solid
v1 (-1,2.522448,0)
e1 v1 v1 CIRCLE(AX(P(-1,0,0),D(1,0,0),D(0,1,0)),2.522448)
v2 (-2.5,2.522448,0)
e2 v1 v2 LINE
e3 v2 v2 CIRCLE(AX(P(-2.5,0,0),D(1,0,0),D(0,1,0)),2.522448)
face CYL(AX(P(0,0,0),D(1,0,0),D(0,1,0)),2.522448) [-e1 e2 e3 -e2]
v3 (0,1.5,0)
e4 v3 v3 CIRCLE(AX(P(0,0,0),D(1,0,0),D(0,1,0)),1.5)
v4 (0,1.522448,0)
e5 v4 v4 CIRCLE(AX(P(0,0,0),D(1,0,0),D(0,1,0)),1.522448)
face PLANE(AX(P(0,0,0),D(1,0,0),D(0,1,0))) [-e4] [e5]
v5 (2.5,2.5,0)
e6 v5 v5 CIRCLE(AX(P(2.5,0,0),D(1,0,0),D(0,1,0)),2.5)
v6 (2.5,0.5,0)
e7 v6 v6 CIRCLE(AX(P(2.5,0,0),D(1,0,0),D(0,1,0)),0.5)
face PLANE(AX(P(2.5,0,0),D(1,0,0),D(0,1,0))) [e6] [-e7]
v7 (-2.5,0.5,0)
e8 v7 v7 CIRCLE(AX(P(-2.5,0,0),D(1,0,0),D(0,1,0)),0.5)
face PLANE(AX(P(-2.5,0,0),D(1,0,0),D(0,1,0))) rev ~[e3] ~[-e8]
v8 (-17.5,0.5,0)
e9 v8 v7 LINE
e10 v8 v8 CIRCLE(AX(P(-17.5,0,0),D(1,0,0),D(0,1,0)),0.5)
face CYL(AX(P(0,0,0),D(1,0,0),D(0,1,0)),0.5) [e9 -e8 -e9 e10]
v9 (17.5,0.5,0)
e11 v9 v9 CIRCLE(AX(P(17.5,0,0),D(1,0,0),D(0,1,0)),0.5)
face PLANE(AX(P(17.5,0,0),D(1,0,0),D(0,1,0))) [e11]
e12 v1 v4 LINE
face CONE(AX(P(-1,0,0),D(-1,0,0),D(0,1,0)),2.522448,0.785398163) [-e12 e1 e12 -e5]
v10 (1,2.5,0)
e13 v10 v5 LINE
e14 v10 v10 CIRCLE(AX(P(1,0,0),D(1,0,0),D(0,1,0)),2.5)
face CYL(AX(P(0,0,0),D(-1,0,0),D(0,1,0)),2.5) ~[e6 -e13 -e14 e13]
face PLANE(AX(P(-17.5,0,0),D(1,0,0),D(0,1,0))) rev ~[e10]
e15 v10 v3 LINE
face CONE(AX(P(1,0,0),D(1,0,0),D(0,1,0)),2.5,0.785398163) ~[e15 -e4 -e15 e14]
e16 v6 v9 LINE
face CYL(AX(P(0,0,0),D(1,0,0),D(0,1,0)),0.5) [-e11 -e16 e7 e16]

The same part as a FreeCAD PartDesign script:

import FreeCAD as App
import Part
import Sketcher

V = App.Vector


def edges_at(feature, points):
    """Names of the edges that pass closest to the given points."""
    edges = feature.Shape.Edges
    near = lambda p: min(range(len(edges)), key=lambda i: edges[i].distToShape(Part.Vertex(*p))[0])
    return sorted({f"Edge{near(p) + 1}" for p in points})

doc = App.newDocument("Part")
params = doc.addObject("Spreadsheet::Sheet", "Params")
for row, (alias, value) in enumerate([
    ("sketch1_diameter", "1 mm"),
    ("pad1_length", "35 mm"),
    ("sketch2_diameter", "5 mm"),
    ("pad2_length", "2.5 mm"),
    ("chamfer_size", "1 mm"),
    ("pad3_length", "2.5 mm"),
    ("chamfer2_size", "1 mm"),
], start=1):
    params.set(f"A{row}", alias)
    params.set(f"B{row}", "=" + value)
    params.setAlias(f"B{row}", alias)

body = doc.addObject("PartDesign::Body", "Body")

sketch1 = doc.addObject("Sketcher::SketchObject", "Sketch")
body.addObject(sketch1)
sketch1.AttachmentSupport = (doc.YZ_Plane, [""])
sketch1.MapMode = "FlatFace"
sketch1.addGeometry(Part.Circle(V(0, 0, 0), V(0, 0, 1), 0.5), False)
sketch1.addConstraint(Sketcher.Constraint("Coincident", 0, 3, -1, 1))
sketch1.addConstraint(Sketcher.Constraint("Diameter", 0, 1.0))
sketch1.setExpression("Constraints[1]", "Params.sketch1_diameter")
pad1 = doc.addObject("PartDesign::Pad", "Pad")
body.addObject(pad1)
pad1.Profile = sketch1
pad1.setExpression("Length", "Params.pad1_length")
pad1.Midplane = True

sketch2 = doc.addObject("Sketcher::SketchObject", "Sketch001")
body.addObject(sketch2)
sketch2.AttachmentSupport = (doc.YZ_Plane, [""])
sketch2.MapMode = "FlatFace"
sketch2.addGeometry(Part.Circle(V(0, 0, 0), V(0, 0, 1), 2.5), False)
sketch2.addConstraint(Sketcher.Constraint("Coincident", 0, 3, -1, 1))
sketch2.addConstraint(Sketcher.Constraint("Diameter", 0, 5.0))
sketch2.setExpression("Constraints[1]", "Params.sketch2_diameter")
pad2 = doc.addObject("PartDesign::Pad", "Pad001")
body.addObject(pad2)
pad2.Profile = sketch2
pad2.setExpression("Length", "Params.pad2_length")
doc.recompute()

chamfer = doc.addObject("PartDesign::Chamfer", "Chamfer")
body.addObject(chamfer)
chamfer.Base = (pad2, edges_at(pad2, [(0, -2.5, 0)]))
chamfer.setExpression("Size", "Params.chamfer_size")

sketch3 = doc.addObject("Sketcher::SketchObject", "Sketch002")
body.addObject(sketch3)
sketch3.AttachmentSupport = (doc.YZ_Plane, [""])
sketch3.MapMode = "FlatFace"
sketch3.addGeometry(Part.Circle(V(0, 0, 0), V(0, 0, 1), 2.522448), False)
sketch3.addConstraint(Sketcher.Constraint("Coincident", 0, 3, -1, 1))
sketch3.addConstraint(Sketcher.Constraint("Diameter", 0, 5.044896))
pad3 = doc.addObject("PartDesign::Pad", "Pad002")
body.addObject(pad3)
pad3.Profile = sketch3
pad3.setExpression("Length", "Params.pad3_length")
pad3.Reversed = True
doc.recompute()

chamfer2 = doc.addObject("PartDesign::Chamfer", "Chamfer001")
body.addObject(chamfer2)
chamfer2.Base = (pad3, edges_at(pad3, [(0, -2.522, 0)]))
chamfer2.setExpression("Size", "Params.chamfer2_size")

doc.recompute()
